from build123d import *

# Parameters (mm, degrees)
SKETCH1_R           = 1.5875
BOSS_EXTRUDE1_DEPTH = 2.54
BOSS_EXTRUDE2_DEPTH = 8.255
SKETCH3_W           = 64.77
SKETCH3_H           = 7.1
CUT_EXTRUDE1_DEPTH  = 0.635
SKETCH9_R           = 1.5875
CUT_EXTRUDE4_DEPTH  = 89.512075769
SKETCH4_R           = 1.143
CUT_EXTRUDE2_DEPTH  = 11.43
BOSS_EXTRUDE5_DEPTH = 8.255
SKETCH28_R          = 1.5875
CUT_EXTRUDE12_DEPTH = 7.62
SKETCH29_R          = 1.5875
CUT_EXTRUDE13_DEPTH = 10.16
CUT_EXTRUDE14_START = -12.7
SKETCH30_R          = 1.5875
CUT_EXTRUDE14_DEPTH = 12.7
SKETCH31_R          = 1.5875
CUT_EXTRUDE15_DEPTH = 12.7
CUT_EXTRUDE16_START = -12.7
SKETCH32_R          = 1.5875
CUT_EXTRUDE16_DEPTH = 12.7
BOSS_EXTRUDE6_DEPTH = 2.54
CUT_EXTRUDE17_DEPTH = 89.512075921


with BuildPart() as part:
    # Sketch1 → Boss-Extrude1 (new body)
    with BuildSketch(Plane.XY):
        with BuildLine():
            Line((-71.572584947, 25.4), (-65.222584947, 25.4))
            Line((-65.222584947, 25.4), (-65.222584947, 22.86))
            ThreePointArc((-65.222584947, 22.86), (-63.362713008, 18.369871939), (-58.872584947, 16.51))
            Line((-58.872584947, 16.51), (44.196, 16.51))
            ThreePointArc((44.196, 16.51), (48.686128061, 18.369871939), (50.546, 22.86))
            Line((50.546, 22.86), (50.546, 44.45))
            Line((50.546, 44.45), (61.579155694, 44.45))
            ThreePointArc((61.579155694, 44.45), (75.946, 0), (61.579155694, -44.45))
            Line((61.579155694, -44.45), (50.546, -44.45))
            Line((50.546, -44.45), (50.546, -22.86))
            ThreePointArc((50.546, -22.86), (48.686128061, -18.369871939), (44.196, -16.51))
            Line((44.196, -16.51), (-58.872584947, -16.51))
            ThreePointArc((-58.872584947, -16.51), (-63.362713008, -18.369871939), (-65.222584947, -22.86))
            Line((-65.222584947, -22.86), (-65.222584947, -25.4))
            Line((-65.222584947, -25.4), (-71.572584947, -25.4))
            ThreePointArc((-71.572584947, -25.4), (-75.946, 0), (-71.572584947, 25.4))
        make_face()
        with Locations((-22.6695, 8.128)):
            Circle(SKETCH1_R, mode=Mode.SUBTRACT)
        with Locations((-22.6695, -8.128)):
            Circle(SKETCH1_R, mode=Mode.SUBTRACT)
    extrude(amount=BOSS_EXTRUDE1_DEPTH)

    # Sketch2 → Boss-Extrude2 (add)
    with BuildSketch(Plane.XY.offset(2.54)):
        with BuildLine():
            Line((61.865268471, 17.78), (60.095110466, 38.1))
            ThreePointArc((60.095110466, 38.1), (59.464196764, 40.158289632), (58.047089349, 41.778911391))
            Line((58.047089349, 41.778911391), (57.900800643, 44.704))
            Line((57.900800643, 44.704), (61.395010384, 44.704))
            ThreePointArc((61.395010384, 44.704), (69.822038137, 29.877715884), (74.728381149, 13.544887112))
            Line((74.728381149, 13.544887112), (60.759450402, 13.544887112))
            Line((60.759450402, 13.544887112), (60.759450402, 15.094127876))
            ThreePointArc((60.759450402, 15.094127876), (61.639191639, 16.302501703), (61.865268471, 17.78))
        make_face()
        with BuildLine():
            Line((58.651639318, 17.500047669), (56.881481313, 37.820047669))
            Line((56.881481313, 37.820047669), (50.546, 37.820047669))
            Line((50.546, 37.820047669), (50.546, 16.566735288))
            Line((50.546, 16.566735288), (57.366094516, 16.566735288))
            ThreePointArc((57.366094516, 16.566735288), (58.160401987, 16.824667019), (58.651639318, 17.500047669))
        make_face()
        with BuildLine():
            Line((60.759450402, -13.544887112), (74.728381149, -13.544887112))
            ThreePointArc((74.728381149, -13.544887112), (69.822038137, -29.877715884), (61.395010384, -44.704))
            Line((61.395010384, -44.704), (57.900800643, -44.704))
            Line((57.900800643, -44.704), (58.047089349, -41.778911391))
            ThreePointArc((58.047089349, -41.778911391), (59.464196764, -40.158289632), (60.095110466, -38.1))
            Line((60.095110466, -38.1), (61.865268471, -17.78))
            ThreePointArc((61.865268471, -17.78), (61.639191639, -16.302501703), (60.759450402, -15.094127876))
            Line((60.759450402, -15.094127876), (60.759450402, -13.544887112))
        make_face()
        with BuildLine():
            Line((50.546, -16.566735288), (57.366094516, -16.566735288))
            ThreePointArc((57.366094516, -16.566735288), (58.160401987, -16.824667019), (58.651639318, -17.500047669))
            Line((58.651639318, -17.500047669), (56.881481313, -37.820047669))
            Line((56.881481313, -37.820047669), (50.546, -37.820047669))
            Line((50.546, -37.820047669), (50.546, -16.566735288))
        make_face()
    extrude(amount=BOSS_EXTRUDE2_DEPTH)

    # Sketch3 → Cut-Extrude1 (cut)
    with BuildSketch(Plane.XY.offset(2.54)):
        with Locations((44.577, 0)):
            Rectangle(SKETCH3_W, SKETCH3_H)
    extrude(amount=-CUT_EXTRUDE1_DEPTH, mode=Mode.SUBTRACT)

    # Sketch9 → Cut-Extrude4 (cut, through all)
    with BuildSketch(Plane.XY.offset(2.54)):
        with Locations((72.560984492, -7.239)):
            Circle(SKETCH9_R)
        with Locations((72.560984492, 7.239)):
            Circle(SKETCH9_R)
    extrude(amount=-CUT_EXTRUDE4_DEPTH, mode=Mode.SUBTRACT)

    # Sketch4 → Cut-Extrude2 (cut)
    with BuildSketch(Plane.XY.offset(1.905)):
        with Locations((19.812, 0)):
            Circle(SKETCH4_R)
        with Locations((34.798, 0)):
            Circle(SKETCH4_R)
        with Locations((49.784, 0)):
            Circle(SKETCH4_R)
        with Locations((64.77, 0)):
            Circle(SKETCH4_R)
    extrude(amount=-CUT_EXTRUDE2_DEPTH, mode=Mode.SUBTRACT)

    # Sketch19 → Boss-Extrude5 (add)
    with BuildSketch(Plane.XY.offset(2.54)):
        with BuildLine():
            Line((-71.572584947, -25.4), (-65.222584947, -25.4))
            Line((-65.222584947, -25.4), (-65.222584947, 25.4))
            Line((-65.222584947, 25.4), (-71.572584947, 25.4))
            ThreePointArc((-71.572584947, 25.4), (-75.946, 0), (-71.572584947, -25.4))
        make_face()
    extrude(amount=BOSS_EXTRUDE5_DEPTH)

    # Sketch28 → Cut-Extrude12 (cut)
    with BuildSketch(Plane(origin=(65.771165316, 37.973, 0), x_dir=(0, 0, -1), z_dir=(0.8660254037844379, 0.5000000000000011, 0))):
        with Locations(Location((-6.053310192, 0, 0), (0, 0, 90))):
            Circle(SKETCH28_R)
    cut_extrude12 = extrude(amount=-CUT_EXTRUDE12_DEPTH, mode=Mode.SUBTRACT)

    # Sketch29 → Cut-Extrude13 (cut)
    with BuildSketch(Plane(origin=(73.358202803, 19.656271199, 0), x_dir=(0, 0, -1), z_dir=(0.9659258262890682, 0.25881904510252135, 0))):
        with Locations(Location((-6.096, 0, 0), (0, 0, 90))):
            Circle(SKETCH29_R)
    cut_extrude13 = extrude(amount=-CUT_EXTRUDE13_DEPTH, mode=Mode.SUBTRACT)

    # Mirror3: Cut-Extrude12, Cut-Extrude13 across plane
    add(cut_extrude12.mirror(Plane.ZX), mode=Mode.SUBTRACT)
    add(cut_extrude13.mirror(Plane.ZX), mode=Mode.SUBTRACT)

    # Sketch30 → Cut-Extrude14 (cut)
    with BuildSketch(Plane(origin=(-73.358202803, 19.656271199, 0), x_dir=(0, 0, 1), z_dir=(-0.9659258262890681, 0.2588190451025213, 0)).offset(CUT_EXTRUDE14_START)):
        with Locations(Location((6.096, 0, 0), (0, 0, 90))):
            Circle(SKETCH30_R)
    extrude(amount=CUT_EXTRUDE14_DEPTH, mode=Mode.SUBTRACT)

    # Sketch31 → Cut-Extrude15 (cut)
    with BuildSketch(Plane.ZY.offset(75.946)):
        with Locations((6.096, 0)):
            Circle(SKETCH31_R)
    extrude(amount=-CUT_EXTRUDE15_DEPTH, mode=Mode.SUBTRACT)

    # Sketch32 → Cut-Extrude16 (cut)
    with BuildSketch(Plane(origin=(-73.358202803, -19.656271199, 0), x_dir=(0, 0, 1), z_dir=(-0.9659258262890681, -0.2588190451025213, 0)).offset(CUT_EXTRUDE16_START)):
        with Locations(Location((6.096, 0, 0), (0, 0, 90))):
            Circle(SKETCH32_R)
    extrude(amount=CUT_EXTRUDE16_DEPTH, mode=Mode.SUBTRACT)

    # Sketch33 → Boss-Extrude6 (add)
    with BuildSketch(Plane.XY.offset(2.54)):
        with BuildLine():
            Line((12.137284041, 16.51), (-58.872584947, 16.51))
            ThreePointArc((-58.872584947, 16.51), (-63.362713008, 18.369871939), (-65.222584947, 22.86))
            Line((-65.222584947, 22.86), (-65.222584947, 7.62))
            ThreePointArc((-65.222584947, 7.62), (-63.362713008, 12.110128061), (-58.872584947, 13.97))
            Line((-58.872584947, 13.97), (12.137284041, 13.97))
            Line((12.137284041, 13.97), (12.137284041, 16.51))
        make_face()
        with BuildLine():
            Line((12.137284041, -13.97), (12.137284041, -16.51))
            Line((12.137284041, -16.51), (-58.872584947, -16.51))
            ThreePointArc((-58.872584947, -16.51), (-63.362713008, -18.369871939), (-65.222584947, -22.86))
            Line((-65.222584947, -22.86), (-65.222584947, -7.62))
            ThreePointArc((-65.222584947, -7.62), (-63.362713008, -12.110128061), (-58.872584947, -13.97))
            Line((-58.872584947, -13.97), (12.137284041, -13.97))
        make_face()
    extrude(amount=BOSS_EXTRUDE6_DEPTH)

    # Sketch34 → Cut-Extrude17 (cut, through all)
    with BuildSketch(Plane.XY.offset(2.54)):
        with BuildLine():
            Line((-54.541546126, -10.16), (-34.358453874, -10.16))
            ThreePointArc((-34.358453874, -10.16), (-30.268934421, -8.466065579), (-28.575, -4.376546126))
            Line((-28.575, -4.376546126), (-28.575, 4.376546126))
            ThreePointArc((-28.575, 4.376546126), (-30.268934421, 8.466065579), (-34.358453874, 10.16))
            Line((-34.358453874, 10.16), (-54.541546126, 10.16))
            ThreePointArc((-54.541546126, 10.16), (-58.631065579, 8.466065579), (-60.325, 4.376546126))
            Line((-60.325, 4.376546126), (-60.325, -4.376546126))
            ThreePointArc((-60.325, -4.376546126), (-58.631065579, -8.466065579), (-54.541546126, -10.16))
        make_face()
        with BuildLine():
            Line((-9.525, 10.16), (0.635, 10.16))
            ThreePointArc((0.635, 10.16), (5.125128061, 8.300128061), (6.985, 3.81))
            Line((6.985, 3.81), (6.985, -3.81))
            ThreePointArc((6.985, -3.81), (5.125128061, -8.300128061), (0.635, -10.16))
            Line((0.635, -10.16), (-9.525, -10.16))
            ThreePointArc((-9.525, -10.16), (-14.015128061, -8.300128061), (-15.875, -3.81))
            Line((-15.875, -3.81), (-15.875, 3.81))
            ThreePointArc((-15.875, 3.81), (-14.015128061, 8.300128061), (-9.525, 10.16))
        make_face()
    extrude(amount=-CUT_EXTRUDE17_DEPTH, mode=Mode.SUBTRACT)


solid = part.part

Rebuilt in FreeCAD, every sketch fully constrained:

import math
import FreeCAD as App
import Part
import Sketcher
from FreeCAD import Vector
Q = App.Units.Quantity

doc = App.newDocument("Part")
body = doc.addObject("PartDesign::Body", "Body")

sketch1 = doc.addObject("Sketcher::SketchObject", "Sketch")
body.addObject(sketch1)
sketch1.AttachmentSupport = (doc.XY_Plane, [""])
sketch1.MapMode = "FlatFace"
sketch1.addGeometry(Part.LineSegment(Vector(-65.2, 25.4, 0), Vector(-71.6, 25.4, 0)), False)
sketch1.addGeometry(Part.ArcOfCircle(Part.Circle(Vector(0, 0, 0), Vector(0, 0, 1), 75.9), math.radians(160), math.radians(200)), False)
sketch1.addGeometry(Part.LineSegment(Vector(-71.6, -25.4, 0), Vector(-65.2, -25.4, 0)), False)
sketch1.addGeometry(Part.LineSegment(Vector(-65.2, -25.4, 0), Vector(-65.2, -22.9, 0)), False)
sketch1.addGeometry(Part.ArcOfCircle(Part.Circle(Vector(-58.9, -22.9, 0), Vector(0, 0, 1), 6.3), math.radians(90), math.radians(180)), False)
sketch1.addGeometry(Part.LineSegment(Vector(-58.9, -16.5, 0), Vector(44.2, -16.5, 0)), False)
sketch1.addGeometry(Part.ArcOfCircle(Part.Circle(Vector(44.2, -22.9, 0), Vector(0, 0, 1), 6.3), math.radians(0), math.radians(90)), False)
sketch1.addGeometry(Part.LineSegment(Vector(50.5, -22.9, 0), Vector(50.5, -44.5, 0)), False)
sketch1.addGeometry(Part.LineSegment(Vector(50.5, -44.5, 0), Vector(61.6, -44.5, 0)), False)
sketch1.addGeometry(Part.ArcOfCircle(Part.Circle(Vector(0, 0, 0), Vector(0, 0, 1), 75.9), math.radians(-36), math.radians(36)), False)
sketch1.addGeometry(Part.LineSegment(Vector(61.6, 44.5, 0), Vector(50.5, 44.5, 0)), False)
sketch1.addGeometry(Part.LineSegment(Vector(50.5, 44.5, 0), Vector(50.5, 22.9, 0)), False)
sketch1.addGeometry(Part.ArcOfCircle(Part.Circle(Vector(44.2, 22.9, 0), Vector(0, 0, 1), 6.3), math.radians(-90), math.radians(0)), False)
sketch1.addGeometry(Part.LineSegment(Vector(44.2, 16.5, 0), Vector(-58.9, 16.5, 0)), False)
sketch1.addGeometry(Part.ArcOfCircle(Part.Circle(Vector(-58.9, 22.9, 0), Vector(0, 0, 1), 6.3), math.radians(180), math.radians(270)), False)
sketch1.addGeometry(Part.LineSegment(Vector(-65.2, 22.9, 0), Vector(-65.2, 25.4, 0)), False)
sketch1.addGeometry(Part.Circle(Vector(-22.7, -8.1, 0), Vector(0, 0, 1), 1.6), False)
sketch1.addGeometry(Part.Circle(Vector(-22.7, 8.1, 0), Vector(0, 0, 1), 1.6), False)
sketch1.addConstraint(Sketcher.Constraint("Coincident", 0, 2, 1, 1))
sketch1.addConstraint(Sketcher.Constraint("Coincident", 1, 2, 2, 1))
sketch1.addConstraint(Sketcher.Constraint("Coincident", 2, 2, 3, 1))
sketch1.addConstraint(Sketcher.Constraint("Tangent", 3, 2, 4, 2))
sketch1.addConstraint(Sketcher.Constraint("Tangent", 4, 1, 5, 1))
sketch1.addConstraint(Sketcher.Constraint("Tangent", 5, 2, 6, 2))
sketch1.addConstraint(Sketcher.Constraint("Tangent", 6, 1, 7, 1))
sketch1.addConstraint(Sketcher.Constraint("Coincident", 7, 2, 8, 1))
sketch1.addConstraint(Sketcher.Constraint("Coincident", 8, 2, 9, 1))
sketch1.addConstraint(Sketcher.Constraint("Coincident", 9, 2, 10, 1))
sketch1.addConstraint(Sketcher.Constraint("Coincident", 10, 2, 11, 1))
sketch1.addConstraint(Sketcher.Constraint("Tangent", 11, 2, 12, 2))
sketch1.addConstraint(Sketcher.Constraint("Tangent", 12, 1, 13, 1))
sketch1.addConstraint(Sketcher.Constraint("Tangent", 13, 2, 14, 2))
sketch1.addConstraint(Sketcher.Constraint("Tangent", 14, 1, 15, 1))
sketch1.addConstraint(Sketcher.Constraint("Coincident", 15, 2, 0, 1))
sketch1.addConstraint(Sketcher.Constraint("Horizontal", 0))
sketch1.addConstraint(Sketcher.Constraint("Horizontal", 2))
sketch1.addConstraint(Sketcher.Constraint("Vertical", 3))
sketch1.addConstraint(Sketcher.Constraint("Horizontal", 5))
sketch1.addConstraint(Sketcher.Constraint("Vertical", 7))
sketch1.addConstraint(Sketcher.Constraint("Horizontal", 8))
sketch1.addConstraint(Sketcher.Constraint("Horizontal", 10))
sketch1.addConstraint(Sketcher.Constraint("Vertical", 11))
sketch1.addConstraint(Sketcher.Constraint("Horizontal", 13))
sketch1.addConstraint(Sketcher.Constraint("Vertical", 15))
sketch1.addConstraint(Sketcher.Constraint("Coincident", 1, 3, -1, 1))
sketch1.addConstraint(Sketcher.Constraint("Coincident", 9, 3, -1, 1))
sketch1.addConstraint(Sketcher.Constraint("Equal", 4, 6))
sketch1.addConstraint(Sketcher.Constraint("Equal", 1, 9))
sketch1.addConstraint(Sketcher.Constraint("Equal", 6, 12))
sketch1.addConstraint(Sketcher.Constraint("Equal", 12, 14))
sketch1.addConstraint(Sketcher.Constraint("Equal", 16, 17))
sketch1.addConstraint(Sketcher.Constraint("Symmetric", 6, 3, 12, 3, -1))
sketch1.addConstraint(Sketcher.Constraint("Symmetric", 16, 3, 17, 3, -1))
sketch1.addConstraint(Sketcher.Constraint("Symmetric", 2, 2, 15, 2, -1))
sketch1.addConstraint(Sketcher.Constraint("Vertical", 8, 2, 9, 2))
sketch1.addConstraint(Sketcher.Constraint("Radius", 1, Q("2.99 in")))
sketch1.addConstraint(Sketcher.Constraint("Radius", 4, Q("0.25 in")))
sketch1.addConstraint(Sketcher.Constraint("Diameter", 16, Q("0.125 in")))
sketch1.addConstraint(Sketcher.Constraint("DistanceY", 3, 1, 3, 2, Q("0.1 in")))
sketch1.addConstraint(Sketcher.Constraint("DistanceY", -1, 1, 0, 2, Q("1 in")))
sketch1.addConstraint(Sketcher.Constraint("DistanceX", 0, 2, 0, 1, Q("0.25 in")))
sketch1.addConstraint(Sketcher.Constraint("DistanceY", 7, 2, 7, 1, Q("0.85 in")))
sketch1.addConstraint(Sketcher.Constraint("DistanceX", -1, 1, 6, 3, Q("1.74 in")))
sketch1.addConstraint(Sketcher.Constraint("DistanceY", 16, 3, -1, 1, Q("0.32 in")))
sketch1.addConstraint(Sketcher.Constraint("DistanceX", 16, 3, -1, 1, Q("0.8925 in")))
pad1 = doc.addObject("PartDesign::Pad", "Pad")
body.addObject(pad1)
pad1.Profile = sketch1
pad1.Length = Q("0.1 in")

sketch2 = doc.addObject("Sketcher::SketchObject", "Sketch001")
body.addObject(sketch2)
sketch2.AttachmentSupport = (doc.XY_Plane, [""])
sketch2.MapMode = "FlatFace"
sketch2.AttachmentOffset = App.Placement(Vector(0, 0, 0.1 * 25.4), App.Rotation())
sketch2.addGeometry(Part.LineSegment(Vector(60.1, 38.1, 0), Vector(61.9, 17.8, 0)), False)
sketch2.addGeometry(Part.ArcOfCircle(Part.Circle(Vector(58.7, 17.5, 0), Vector(0, 0, 1), 3.2), math.radians(-50), math.radians(5)), False)
sketch2.addGeometry(Part.LineSegment(Vector(60.8, 15.1, 0), Vector(60.8, 13.5, 0)), False)
sketch2.addGeometry(Part.LineSegment(Vector(60.8, 13.5, 0), Vector(74.7, 13.5, 0)), False)
sketch2.addGeometry(Part.ArcOfCircle(Part.Circle(Vector(0, 0, 0), Vector(0, 0, 1), 75.9), math.radians(10), math.radians(36)), False)
sketch2.addGeometry(Part.LineSegment(Vector(61.4, 44.7, 0), Vector(57.9, 44.7, 0)), False)
sketch2.addGeometry(Part.LineSegment(Vector(57.9, 44.7, 0), Vector(58, 41.8, 0)), False)
sketch2.addGeometry(Part.ArcOfCircle(Part.Circle(Vector(55, 37.7, 0), Vector(0, 0, 1), 5.2), math.radians(5), math.radians(53)), False)
sketch2.addGeometry(Part.LineSegment(Vector(58.7, 17.5, 0), Vector(56.9, 37.8, 0)), False)
sketch2.addGeometry(Part.LineSegment(Vector(56.9, 37.8, 0), Vector(50.5, 37.8, 0)), False)
sketch2.addGeometry(Part.LineSegment(Vector(50.5, 37.8, 0), Vector(50.5, 16.6, 0)), False)
sketch2.addGeometry(Part.LineSegment(Vector(50.5, 16.6, 0), Vector(57.4, 16.6, 0)), False)
sketch2.addGeometry(Part.ArcOfCircle(Part.Circle(Vector(57.4, 17.9, 0), Vector(0, 0, 1), 1.4), math.radians(-90), math.radians(-18)), False)
sketch2.addGeometry(Part.LineSegment(Vector(74.7, -13.5, 0), Vector(60.8, -13.5, 0)), False)
sketch2.addGeometry(Part.LineSegment(Vector(60.8, -13.5, 0), Vector(60.8, -15.1, 0)), False)
sketch2.addGeometry(Part.ArcOfCircle(Part.Circle(Vector(58.7, -17.5, 0), Vector(0, 0, 1), 3.2), math.radians(-5), math.radians(50)), False)
sketch2.addGeometry(Part.LineSegment(Vector(61.9, -17.8, 0), Vector(60.1, -38.1, 0)), False)
sketch2.addGeometry(Part.ArcOfCircle(Part.Circle(Vector(55, -37.7, 0), Vector(0, 0, 1), 5.2), math.radians(-53), math.radians(-5)), False)
sketch2.addGeometry(Part.LineSegment(Vector(58, -41.8, 0), Vector(57.9, -44.7, 0)), False)
sketch2.addGeometry(Part.LineSegment(Vector(57.9, -44.7, 0), Vector(61.4, -44.7, 0)), False)
sketch2.addGeometry(Part.ArcOfCircle(Part.Circle(Vector(0, 0, 0), Vector(0, 0, 1), 75.9), math.radians(-36), math.radians(-10)), False)
sketch2.addGeometry(Part.LineSegment(Vector(57.4, -16.6, 0), Vector(50.5, -16.6, 0)), False)
sketch2.addGeometry(Part.LineSegment(Vector(50.5, -16.6, 0), Vector(50.5, -37.8, 0)), False)
sketch2.addGeometry(Part.LineSegment(Vector(50.5, -37.8, 0), Vector(56.9, -37.8, 0)), False)
sketch2.addGeometry(Part.LineSegment(Vector(56.9, -37.8, 0), Vector(58.7, -17.5, 0)), False)
sketch2.addGeometry(Part.ArcOfCircle(Part.Circle(Vector(57.4, -17.9, 0), Vector(0, 0, 1), 1.4), math.radians(18), math.radians(90)), False)
sketch2.addConstraint(Sketcher.Constraint("Tangent", 0, 2, 1, 2))
sketch2.addConstraint(Sketcher.Constraint("Coincident", 1, 1, 2, 1))
sketch2.addConstraint(Sketcher.Constraint("Coincident", 2, 2, 3, 1))
sketch2.addConstraint(Sketcher.Constraint("Coincident", 3, 2, 4, 1))
sketch2.addConstraint(Sketcher.Constraint("Coincident", 4, 2, 5, 1))
sketch2.addConstraint(Sketcher.Constraint("Coincident", 5, 2, 6, 1))
sketch2.addConstraint(Sketcher.Constraint("Coincident", 6, 2, 7, 2))
sketch2.addConstraint(Sketcher.Constraint("Tangent", 7, 1, 0, 1))
sketch2.addConstraint(Sketcher.Constraint("Coincident", 8, 2, 9, 1))
sketch2.addConstraint(Sketcher.Constraint("Coincident", 9, 2, 10, 1))
sketch2.addConstraint(Sketcher.Constraint("Coincident", 10, 2, 11, 1))
sketch2.addConstraint(Sketcher.Constraint("Tangent", 11, 2, 12, 1))
sketch2.addConstraint(Sketcher.Constraint("Coincident", 12, 2, 8, 1))
sketch2.addConstraint(Sketcher.Constraint("Coincident", 13, 2, 14, 1))
sketch2.addConstraint(Sketcher.Constraint("Coincident", 14, 2, 15, 2))
sketch2.addConstraint(Sketcher.Constraint("Tangent", 15, 1, 16, 1))
sketch2.addConstraint(Sketcher.Constraint("Tangent", 16, 2, 17, 2))
sketch2.addConstraint(Sketcher.Constraint("Coincident", 17, 1, 18, 1))
sketch2.addConstraint(Sketcher.Constraint("Coincident", 18, 2, 19, 1))
sketch2.addConstraint(Sketcher.Constraint("Coincident", 19, 2, 20, 1))
sketch2.addConstraint(Sketcher.Constraint("Coincident", 20, 2, 13, 1))
sketch2.addConstraint(Sketcher.Constraint("Coincident", 21, 2, 22, 1))
sketch2.addConstraint(Sketcher.Constraint("Coincident", 22, 2, 23, 1))
sketch2.addConstraint(Sketcher.Constraint("Coincident", 23, 2, 24, 1))
sketch2.addConstraint(Sketcher.Constraint("Coincident", 24, 2, 25, 1))
sketch2.addConstraint(Sketcher.Constraint("Tangent", 25, 2, 21, 1))
sketch2.addConstraint(Sketcher.Constraint("Vertical", 2))
sketch2.addConstraint(Sketcher.Constraint("Horizontal", 3))
sketch2.addConstraint(Sketcher.Constraint("Horizontal", 5))
sketch2.addConstraint(Sketcher.Constraint("Horizontal", 9))
sketch2.addConstraint(Sketcher.Constraint("Vertical", 10))
sketch2.addConstraint(Sketcher.Constraint("Horizontal", 11))
sketch2.addConstraint(Sketcher.Constraint("Horizontal", 13))
sketch2.addConstraint(Sketcher.Constraint("Vertical", 14))
sketch2.addConstraint(Sketcher.Constraint("Horizontal", 19))
sketch2.addConstraint(Sketcher.Constraint("Horizontal", 21))
sketch2.addConstraint(Sketcher.Constraint("Vertical", 22))
sketch2.addConstraint(Sketcher.Constraint("Horizontal", 23))
sketch2.addConstraint(Sketcher.Constraint("Coincident", 4, 3, -1, 1))
sketch2.addConstraint(Sketcher.Constraint("Coincident", 20, 3, -1, 1))
sketch2.addConstraint(Sketcher.Constraint("Equal", 1, 15))
sketch2.addConstraint(Sketcher.Constraint("Equal", 7, 17))
sketch2.addConstraint(Sketcher.Constraint("Equal", 4, 20))
sketch2.addConstraint(Sketcher.Constraint("Equal", 12, 25))
sketch2.addConstraint(Sketcher.Constraint("Symmetric", 1, 3, 15, 3, -1))
sketch2.addConstraint(Sketcher.Constraint("Symmetric", 7, 3, 17, 3, -1))
sketch2.addConstraint(Sketcher.Constraint("Symmetric", 12, 3, 25, 3, -1))
sketch2.addConstraint(Sketcher.Constraint("Symmetric", 2, 2, 13, 2, -1))
sketch2.addConstraint(Sketcher.Constraint("Symmetric", 5, 2, 18, 2, -1))
sketch2.addConstraint(Sketcher.Constraint("Symmetric", 9, 2, 22, 2, -1))
sketch2.addConstraint(Sketcher.Constraint("Parallel", 0, 8))
sketch2.addConstraint(Sketcher.Constraint("Parallel", 16, 24))
sketch2.addConstraint(Sketcher.Constraint("Vertical", 6, 2, 17, 1))
sketch2.addConstraint(Sketcher.Constraint("Vertical", 8, 2, 23, 2))
sketch2.addConstraint(Sketcher.Constraint("Equal", 0, 8))
sketch2.addConstraint(Sketcher.Constraint("Radius", 4, Q("2.99 in")))
sketch2.addConstraint(Sketcher.Constraint("DistanceY", -1, 1, 0, 2, Q("0.7 in")))
sketch2.addConstraint(Sketcher.Constraint("DistanceY", -1, 1, 7, 1, Q("1.5 in")))
sketch2.addConstraint(Sketcher.Constraint("DistanceY", -1, 1, 4, 2, Q("1.76 in")))
sketch2.addConstraint(Sketcher.Constraint("DistanceX", -1, 1, 9, 2, Q("1.99 in")))
sketch2.addConstraint(Sketcher.Constraint("Radius", 12, 1.352011))
sketch2.addConstraint(Sketcher.Constraint("Radius", 1, 3.160443))
sketch2.addConstraint(Sketcher.Constraint("Radius", 7, 5.150666))
sketch2.addConstraint(Sketcher.Constraint("DistanceY", 1, 3, 7, 3, Q("0.7931999 in")))
sketch2.addConstraint(Sketcher.Constraint("DistanceX", 3, 1, 3, 2, 13.968931))
sketch2.addConstraint(Sketcher.Constraint("DistanceX", 5, 2, 5, 1, 3.49421))
sketch2.addConstraint(Sketcher.Constraint("DistanceX", 9, 2, 9, 1, 6.335481))
sketch2.addConstraint(Sketcher.Constraint("DistanceY", 2, 2, 2, 1, 1.549241))
sketch2.addConstraint(Sketcher.Constraint("DistanceX", 1, 3, 1, 1, 2.042701))
sketch2.addConstraint(Sketcher.Constraint("DistanceY", 12, 2, 12, 3, 0.418699))
sketch2.addConstraint(Sketcher.Constraint("DistanceX", -1, 1, 6, 2, 58.047089))
sketch2.addConstraint(Sketcher.Constraint("DistanceY", 12, 3, 7, 3, 19.734251))
pad2 = doc.addObject("PartDesign::Pad", "Pad001")
body.addObject(pad2)
pad2.Profile = sketch2
pad2.Length = Q("0.325 in")

sketch3 = doc.addObject("Sketcher::SketchObject", "Sketch002")
body.addObject(sketch3)
sketch3.AttachmentSupport = (doc.XY_Plane, [""])
sketch3.MapMode = "FlatFace"
sketch3.AttachmentOffset = App.Placement(Vector(0, 0, 0.1 * 25.4), App.Rotation())
sketch3.addGeometry(Part.LineSegment(Vector(12, 4, 0), Vector(12, -4, 0)), False)
sketch3.addGeometry(Part.LineSegment(Vector(12, -4, 0), Vector(77, -4, 0)), False)
sketch3.addGeometry(Part.LineSegment(Vector(77, -4, 0), Vector(77, 4, 0)), False)
sketch3.addGeometry(Part.LineSegment(Vector(77, 4, 0), Vector(12, 4, 0)), False)
sketch3.addConstraint(Sketcher.Constraint("Coincident", 0, 2, 1, 1))
sketch3.addConstraint(Sketcher.Constraint("Coincident", 1, 2, 2, 1))
sketch3.addConstraint(Sketcher.Constraint("Coincident", 2, 2, 3, 1))
sketch3.addConstraint(Sketcher.Constraint("Coincident", 3, 2, 0, 1))
sketch3.addConstraint(Sketcher.Constraint("Vertical", 0))
sketch3.addConstraint(Sketcher.Constraint("Horizontal", 1))
sketch3.addConstraint(Sketcher.Constraint("Vertical", 2))
sketch3.addConstraint(Sketcher.Constraint("Horizontal", 3))
sketch3.addConstraint(Sketcher.Constraint("DistanceX", 1, 1, 1, 2, Q("2.55 in")))
sketch3.addConstraint(Sketcher.Constraint("DistanceX", -1, 1, 0, 2, Q("0.48 in")))
sketch3.addConstraint(Sketcher.Constraint("DistanceY", 0, 2, 0, 1, 7.1))
sketch3.addConstraint(Sketcher.Constraint("DistanceY", 0, 2, -1, 1, 3.55))
pocket1 = doc.addObject("PartDesign::Pocket", "Pocket")
body.addObject(pocket1)
pocket1.Profile = sketch3
pocket1.Length = Q("0.025 in")

sketch4 = doc.addObject("Sketcher::SketchObject", "Sketch003")
body.addObject(sketch4)
sketch4.AttachmentSupport = (doc.XY_Plane, [""])
sketch4.MapMode = "FlatFace"
sketch4.AttachmentOffset = App.Placement(Vector(0, 0, 0.1 * 25.4), App.Rotation())
sketch4.addGeometry(Part.Circle(Vector(72.6, -7.2, 0), Vector(0, 0, 1), 1.6), False)
sketch4.addGeometry(Part.Circle(Vector(72.6, 7.2, 0), Vector(0, 0, 1), 1.6), False)
sketch4.addConstraint(Sketcher.Constraint("Equal", 0, 1))
sketch4.addConstraint(Sketcher.Constraint("Symmetric", 0, 3, 1, 3, -1))
sketch4.addConstraint(Sketcher.Constraint("Diameter", 0, Q("0.125 in")))
sketch4.addConstraint(Sketcher.Constraint("DistanceY", 0, 3, 1, 3, Q("0.57 in")))
sketch4.addConstraint(Sketcher.Constraint("DistanceX", -1, 1, 0, 3, 72.560984))
pocket2 = doc.addObject("PartDesign::Pocket", "Pocket001")
body.addObject(pocket2)
pocket2.Profile = sketch4
pocket2.Type = "ThroughAll"

sketch5 = doc.addObject("Sketcher::SketchObject", "Sketch004")
body.addObject(sketch5)
sketch5.AttachmentSupport = (doc.XY_Plane, [""])
sketch5.MapMode = "FlatFace"
sketch5.AttachmentOffset = App.Placement(Vector(0, 0, 0.075 * 25.4), App.Rotation())
sketch5.addGeometry(Part.Circle(Vector(19.8, 0, 0), Vector(0, 0, 1), 1.1), False)
sketch5.addGeometry(Part.Circle(Vector(34.8, 0, 0), Vector(0, 0, 1), 1.1), False)
sketch5.addGeometry(Part.Circle(Vector(49.8, 0, 0), Vector(0, 0, 1), 1.1), False)
sketch5.addGeometry(Part.Circle(Vector(64.8, 0, 0), Vector(0, 0, 1), 1.1), False)
sketch5.addConstraint(Sketcher.Constraint("Equal", 0, 1))
sketch5.addConstraint(Sketcher.Constraint("Equal", 1, 2))
sketch5.addConstraint(Sketcher.Constraint("Equal", 2, 3))
sketch5.addConstraint(Sketcher.Constraint("PointOnObject", 0, 3, -1))
sketch5.addConstraint(Sketcher.Constraint("PointOnObject", 1, 3, -1))
sketch5.addConstraint(Sketcher.Constraint("PointOnObject", 2, 3, -1))
sketch5.addConstraint(Sketcher.Constraint("PointOnObject", 3, 3, -1))
sketch5.addConstraint(Sketcher.Constraint("Diameter", 0, Q("0.09 in")))
sketch5.addConstraint(Sketcher.Constraint("DistanceX", -1, 1, 0, 3, Q("0.78 in")))
sketch5.addConstraint(Sketcher.Constraint("DistanceX", -1, 1, 1, 3, Q("1.37 in")))
sketch5.addConstraint(Sketcher.Constraint("DistanceX", -1, 1, 2, 3, Q("1.96 in")))
sketch5.addConstraint(Sketcher.Constraint("DistanceX", -1, 1, 3, 3, Q("2.55 in")))
pocket3 = doc.addObject("PartDesign::Pocket", "Pocket002")
body.addObject(pocket3)
pocket3.Profile = sketch5
pocket3.Length = Q("0.45 in")

sketch6 = doc.addObject("Sketcher::SketchObject", "Sketch005")
body.addObject(sketch6)
sketch6.AttachmentSupport = (doc.XY_Plane, [""])
sketch6.MapMode = "FlatFace"
sketch6.AttachmentOffset = App.Placement(Vector(0, 0, 0.1 * 25.4), App.Rotation())
sketch6.addGeometry(Part.LineSegment(Vector(-72, -25, 0), Vector(-65, -25, 0)), False)
sketch6.addGeometry(Part.LineSegment(Vector(-65, -25, 0), Vector(-65, 25, 0)), False)
sketch6.addGeometry(Part.LineSegment(Vector(-65, 25, 0), Vector(-72, 25, 0)), False)
sketch6.addGeometry(Part.ArcOfCircle(Part.Circle(Vector(0, 0, 0), Vector(0, 0, 1), 76), math.radians(160), math.radians(200)), False)
sketch6.addConstraint(Sketcher.Constraint("Coincident", 0, 2, 1, 1))
sketch6.addConstraint(Sketcher.Constraint("Coincident", 1, 2, 2, 1))
sketch6.addConstraint(Sketcher.Constraint("Coincident", 2, 2, 3, 1))
sketch6.addConstraint(Sketcher.Constraint("Coincident", 3, 2, 0, 1))
sketch6.addConstraint(Sketcher.Constraint("Horizontal", 0))
sketch6.addConstraint(Sketcher.Constraint("Vertical", 1))
sketch6.addConstraint(Sketcher.Constraint("Horizontal", 2))
sketch6.addConstraint(Sketcher.Constraint("Coincident", 3, 3, -1, 1))
sketch6.addConstraint(Sketcher.Constraint("Vertical", 2, 2, 3, 2))
sketch6.addConstraint(Sketcher.Constraint("DistanceY", 1, 1, 1, 2, Q("2 in")))
sketch6.addConstraint(Sketcher.Constraint("Radius", 3, Q("2.99 in")))
sketch6.addConstraint(Sketcher.Constraint("DistanceX", 0, 1, 0, 2, Q("0.25 in")))
pad3 = doc.addObject("PartDesign::Pad", "Pad002")
body.addObject(pad3)
pad3.Profile = sketch6
pad3.Length = Q("0.325 in")

sketch7 = doc.addObject("Sketcher::SketchObject", "Sketch006")
body.addObject(sketch7)
sketch7.Placement = App.Placement(Vector(65.771165, 37.973, 0), App.Rotation(Vector(0, 0, -1), Vector(-0.5, 0.866025404, 0), Vector(0.866025404, 0.5, 0), "ZXY"))
sketch7.addGeometry(Part.Circle(Vector(-6.1, 0, 0), Vector(0, 0, 1), 1.6), False)
sketch7.addConstraint(Sketcher.Constraint("PointOnObject", 0, 3, -1))
sketch7.addConstraint(Sketcher.Constraint("Diameter", 0, Q("0.125 in")))
sketch7.addConstraint(Sketcher.Constraint("DistanceX", 0, 3, -1, 1, 6.05331))
pocket4 = doc.addObject("PartDesign::Pocket", "Pocket003")
body.addObject(pocket4)
pocket4.Profile = sketch7
pocket4.Length = Q("0.3 in")

sketch8 = doc.addObject("Sketcher::SketchObject", "Sketch007")
body.addObject(sketch8)
sketch8.Placement = App.Placement(Vector(73.358203, 19.656271, 0), App.Rotation(Vector(0, 0, -1), Vector(-0.258819045, 0.965925826, 0), Vector(0.965925826, 0.258819045, 0), "ZXY"))
sketch8.addGeometry(Part.Circle(Vector(-6.1, 0, 0), Vector(0, 0, 1), 1.6), False)
sketch8.addConstraint(Sketcher.Constraint("PointOnObject", 0, 3, -1))
sketch8.addConstraint(Sketcher.Constraint("Diameter", 0, Q("0.125 in")))
sketch8.addConstraint(Sketcher.Constraint("DistanceX", 0, 3, -1, 1, Q("0.24 in")))
pocket5 = doc.addObject("PartDesign::Pocket", "Pocket004")
body.addObject(pocket5)
pocket5.Profile = sketch8
pocket5.Length = Q("0.4 in")
doc.recompute()

mirrored = doc.addObject("PartDesign::Mirrored", "Mirrored")
body.addObject(mirrored)
mirrored.Originals = [pocket4, pocket5]
mirrored.MirrorPlane = (doc.XZ_Plane, [""])
body.Tip = mirrored

sketch9 = doc.addObject("Sketcher::SketchObject", "Sketch008")
body.addObject(sketch9)
sketch9.Placement = App.Placement(Vector(-61.090945, 16.369269, 0), App.Rotation(Vector(0, 0, 1), Vector(0.258819045, 0.965925826, 0), Vector(-0.965925826, 0.258819045, 0), "ZXY"))
sketch9.addGeometry(Part.Circle(Vector(6.1, 0, 0), Vector(0, 0, 1), 1.6), False)
sketch9.addConstraint(Sketcher.Constraint("PointOnObject", 0, 3, -1))
sketch9.addConstraint(Sketcher.Constraint("Diameter", 0, Q("0.125 in")))
sketch9.addConstraint(Sketcher.Constraint("DistanceX", -1, 1, 0, 3, Q("0.24 in")))
pocket6 = doc.addObject("PartDesign::Pocket", "Pocket005")
body.addObject(pocket6)
pocket6.Profile = sketch9
pocket6.Length = Q("0.5 in")
pocket6.Reversed = True

sketch10 = doc.addObject("Sketcher::SketchObject", "Sketch009")
body.addObject(sketch10)
sketch10.AttachmentSupport = (doc.YZ_Plane, [""])
sketch10.MapMode = "FlatFace"
sketch10.AttachmentOffset = App.Placement(Vector(0, 0, -2.99 * 25.4), App.Rotation())
sketch10.addGeometry(Part.Circle(Vector(0, 6.1, 0), Vector(0, 0, 1), 1.6), False)
sketch10.addConstraint(Sketcher.Constraint("PointOnObject", 0, 3, -2))
sketch10.addConstraint(Sketcher.Constraint("Diameter", 0, Q("0.125 in")))
sketch10.addConstraint(Sketcher.Constraint("DistanceY", -1, 1, 0, 3, Q("0.24 in")))
pocket7 = doc.addObject("PartDesign::Pocket", "Pocket006")
body.addObject(pocket7)
pocket7.Profile = sketch10
pocket7.Length = Q("0.5 in")
pocket7.Reversed = True

sketch11 = doc.addObject("Sketcher::SketchObject", "Sketch010")
body.addObject(sketch11)
sketch11.Placement = App.Placement(Vector(-61.090945, -16.369269, 0), App.Rotation(Vector(0, 0, 1), Vector(-0.258819045, 0.965925826, 0), Vector(-0.965925826, -0.258819045, 0), "ZXY"))
sketch11.addGeometry(Part.Circle(Vector(6.1, 0, 0), Vector(0, 0, 1), 1.6), False)
sketch11.addConstraint(Sketcher.Constraint("PointOnObject", 0, 3, -1))
sketch11.addConstraint(Sketcher.Constraint("Diameter", 0, Q("0.125 in")))
sketch11.addConstraint(Sketcher.Constraint("DistanceX", -1, 1, 0, 3, Q("0.24 in")))
pocket8 = doc.addObject("PartDesign::Pocket", "Pocket007")
body.addObject(pocket8)
pocket8.Profile = sketch11
pocket8.Length = Q("0.5 in")
pocket8.Reversed = True

sketch12 = doc.addObject("Sketcher::SketchObject", "Sketch011")
body.addObject(sketch12)
sketch12.AttachmentSupport = (doc.XY_Plane, [""])
sketch12.MapMode = "FlatFace"
sketch12.AttachmentOffset = App.Placement(Vector(0, 0, 0.1 * 25.4), App.Rotation())
sketch12.addGeometry(Part.LineSegment(Vector(12.1, 16.5, 0), Vector(-58.9, 16.5, 0)), False)
sketch12.addGeometry(Part.ArcOfCircle(Part.Circle(Vector(-58.9, 22.9, 0), Vector(0, 0, 1), 6.3), math.radians(180), math.radians(270)), False)
sketch12.addGeometry(Part.LineSegment(Vector(-65.2, 22.9, 0), Vector(-65.2, 7.6, 0)), False)
sketch12.addGeometry(Part.ArcOfCircle(Part.Circle(Vector(-58.9, 7.6, 0), Vector(0, 0, 1), 6.3), math.radians(90), math.radians(180)), False)
sketch12.addGeometry(Part.LineSegment(Vector(-58.9, 14, 0), Vector(12.1, 14, 0)), False)
sketch12.addGeometry(Part.LineSegment(Vector(12.1, 14, 0), Vector(12.1, 16.5, 0)), False)
sketch12.addGeometry(Part.LineSegment(Vector(12.1, -16.5, 0), Vector(12.1, -14, 0)), False)
sketch12.addGeometry(Part.LineSegment(Vector(12.1, -14, 0), Vector(-58.9, -14, 0)), False)
sketch12.addGeometry(Part.ArcOfCircle(Part.Circle(Vector(-58.9, -7.6, 0), Vector(0, 0, 1), 6.3), math.radians(180), math.radians(270)), False)
sketch12.addGeometry(Part.LineSegment(Vector(-65.2, -7.6, 0), Vector(-65.2, -22.9, 0)), False)
sketch12.addGeometry(Part.ArcOfCircle(Part.Circle(Vector(-58.9, -22.9, 0), Vector(0, 0, 1), 6.3), math.radians(90), math.radians(180)), False)
sketch12.addGeometry(Part.LineSegment(Vector(-58.9, -16.5, 0), Vector(12.1, -16.5, 0)), False)
sketch12.addConstraint(Sketcher.Constraint("Tangent", 0, 2, 1, 2))
sketch12.addConstraint(Sketcher.Constraint("Tangent", 1, 1, 2, 1))
sketch12.addConstraint(Sketcher.Constraint("Tangent", 2, 2, 3, 2))
sketch12.addConstraint(Sketcher.Constraint("Tangent", 3, 1, 4, 1))
sketch12.addConstraint(Sketcher.Constraint("Coincident", 4, 2, 5, 1))
sketch12.addConstraint(Sketcher.Constraint("Coincident", 5, 2, 0, 1))
sketch12.addConstraint(Sketcher.Constraint("Coincident", 6, 2, 7, 1))
sketch12.addConstraint(Sketcher.Constraint("Tangent", 7, 2, 8, 2))
sketch12.addConstraint(Sketcher.Constraint("Tangent", 8, 1, 9, 1))
sketch12.addConstraint(Sketcher.Constraint("Tangent", 9, 2, 10, 2))
sketch12.addConstraint(Sketcher.Constraint("Tangent", 10, 1, 11, 1))
sketch12.addConstraint(Sketcher.Constraint("Coincident", 11, 2, 6, 1))
sketch12.addConstraint(Sketcher.Constraint("Horizontal", 0))
sketch12.addConstraint(Sketcher.Constraint("Vertical", 2))
sketch12.addConstraint(Sketcher.Constraint("Horizontal", 4))
sketch12.addConstraint(Sketcher.Constraint("Vertical", 5))
sketch12.addConstraint(Sketcher.Constraint("Vertical", 6))
sketch12.addConstraint(Sketcher.Constraint("Horizontal", 7))
sketch12.addConstraint(Sketcher.Constraint("Vertical", 9))
sketch12.addConstraint(Sketcher.Constraint("Horizontal", 11))
sketch12.addConstraint(Sketcher.Constraint("Equal", 1, 3))
sketch12.addConstraint(Sketcher.Constraint("Equal", 3, 8))
sketch12.addConstraint(Sketcher.Constraint("Equal", 8, 10))
sketch12.addConstraint(Sketcher.Constraint("Symmetric", 3, 3, 8, 3, -1))
sketch12.addConstraint(Sketcher.Constraint("Symmetric", 5, 2, 11, 2, -1))
sketch12.addConstraint(Sketcher.Constraint("Radius", 1, Q("0.25 in")))
sketch12.addConstraint(Sketcher.Constraint("DistanceY", 2, 2, 2, 1, Q("0.6 in")))
sketch12.addConstraint(Sketcher.Constraint("DistanceY", -1, 1, 1, 3, Q("0.9 in")))
sketch12.addConstraint(Sketcher.Constraint("DistanceX", 0, 2, 0, 1, 71.009869))
sketch12.addConstraint(Sketcher.Constraint("DistanceX", 1, 3, -1, 1, 58.872585))
pad4 = doc.addObject("PartDesign::Pad", "Pad003")
body.addObject(pad4)
pad4.Profile = sketch12
pad4.Length = Q("0.1 in")

sketch13 = doc.addObject("Sketcher::SketchObject", "Sketch012")
body.addObject(sketch13)
sketch13.AttachmentSupport = (doc.XY_Plane, [""])
sketch13.MapMode = "FlatFace"
sketch13.AttachmentOffset = App.Placement(Vector(0, 0, 0.1 * 25.4), App.Rotation())
sketch13.addGeometry(Part.LineSegment(Vector(-55, -10, 0), Vector(-34, -10, 0)), False)
sketch13.addGeometry(Part.ArcOfCircle(Part.Circle(Vector(-34, -4, 0), Vector(0, 0, 1), 6), math.radians(-90), math.radians(0)), False)
sketch13.addGeometry(Part.LineSegment(Vector(-29, -4, 0), Vector(-29, 4, 0)), False)
sketch13.addGeometry(Part.ArcOfCircle(Part.Circle(Vector(-34, 4, 0), Vector(0, 0, 1), 6), math.radians(0), math.radians(90)), False)
sketch13.addGeometry(Part.LineSegment(Vector(-34, 10, 0), Vector(-55, 10, 0)), False)
sketch13.addGeometry(Part.ArcOfCircle(Part.Circle(Vector(-55, 4, 0), Vector(0, 0, 1), 6), math.radians(90), math.radians(180)), False)
sketch13.addGeometry(Part.LineSegment(Vector(-60, 4, 0), Vector(-60, -4, 0)), False)
sketch13.addGeometry(Part.ArcOfCircle(Part.Circle(Vector(-55, -4, 0), Vector(0, 0, 1), 6), math.radians(180), math.radians(270)), False)
sketch13.addGeometry(Part.LineSegment(Vector(1, 10, 0), Vector(-10, 10, 0)), False)
sketch13.addGeometry(Part.ArcOfCircle(Part.Circle(Vector(-10, 4, 0), Vector(0, 0, 1), 6), math.radians(90), math.radians(180)), False)
sketch13.addGeometry(Part.LineSegment(Vector(-16, 4, 0), Vector(-16, -4, 0)), False)
sketch13.addGeometry(Part.ArcOfCircle(Part.Circle(Vector(-10, -4, 0), Vector(0, 0, 1), 6), math.radians(180), math.radians(270)), False)
sketch13.addGeometry(Part.LineSegment(Vector(-10, -10, 0), Vector(1, -10, 0)), False)
sketch13.addGeometry(Part.ArcOfCircle(Part.Circle(Vector(1, -4, 0), Vector(0, 0, 1), 6), math.radians(-90), math.radians(0)), False)
sketch13.addGeometry(Part.LineSegment(Vector(7, -4, 0), Vector(7, 4, 0)), False)
sketch13.addGeometry(Part.ArcOfCircle(Part.Circle(Vector(1, 4, 0), Vector(0, 0, 1), 6), math.radians(0), math.radians(90)), False)
sketch13.addConstraint(Sketcher.Constraint("Tangent", 0, 2, 1, 1))
sketch13.addConstraint(Sketcher.Constraint("Tangent", 1, 2, 2, 1))
sketch13.addConstraint(Sketcher.Constraint("Tangent", 2, 2, 3, 1))
sketch13.addConstraint(Sketcher.Constraint("Tangent", 3, 2, 4, 1))
sketch13.addConstraint(Sketcher.Constraint("Tangent", 4, 2, 5, 1))
sketch13.addConstraint(Sketcher.Constraint("Tangent", 5, 2, 6, 1))
sketch13.addConstraint(Sketcher.Constraint("Tangent", 6, 2, 7, 1))
sketch13.addConstraint(Sketcher.Constraint("Tangent", 7, 2, 0, 1))
sketch13.addConstraint(Sketcher.Constraint("Tangent", 8, 2, 9, 1))
sketch13.addConstraint(Sketcher.Constraint("Tangent", 9, 2, 10, 1))
sketch13.addConstraint(Sketcher.Constraint("Tangent", 10, 2, 11, 1))
sketch13.addConstraint(Sketcher.Constraint("Tangent", 11, 2, 12, 1))
sketch13.addConstraint(Sketcher.Constraint("Tangent", 12, 2, 13, 1))
sketch13.addConstraint(Sketcher.Constraint("Tangent", 13, 2, 14, 1))
sketch13.addConstraint(Sketcher.Constraint("Tangent", 14, 2, 15, 1))
sketch13.addConstraint(Sketcher.Constraint("Tangent", 15, 2, 8, 1))
sketch13.addConstraint(Sketcher.Constraint("Horizontal", 0))
sketch13.addConstraint(Sketcher.Constraint("Vertical", 2))
sketch13.addConstraint(Sketcher.Constraint("Horizontal", 4))
sketch13.addConstraint(Sketcher.Constraint("Vertical", 6))
sketch13.addConstraint(Sketcher.Constraint("Horizontal", 8))
sketch13.addConstraint(Sketcher.Constraint("Vertical", 10))
sketch13.addConstraint(Sketcher.Constraint("Horizontal", 12))
sketch13.addConstraint(Sketcher.Constraint("Vertical", 14))
sketch13.addConstraint(Sketcher.Constraint("Equal", 1, 3))
sketch13.addConstraint(Sketcher.Constraint("Equal", 3, 5))
sketch13.addConstraint(Sketcher.Constraint("Equal", 5, 7))
sketch13.addConstraint(Sketcher.Constraint("Equal", 9, 11))
sketch13.addConstraint(Sketcher.Constraint("Equal", 11, 13))
sketch13.addConstraint(Sketcher.Constraint("Equal", 13, 15))
sketch13.addConstraint(Sketcher.Constraint("Horizontal", 4, 2, 8, 2))
sketch13.addConstraint(Sketcher.Constraint("Horizontal", 7, 2, 11, 2))
sketch13.addConstraint(Sketcher.Constraint("Radius", 9, Q("0.25 in")))
sketch13.addConstraint(Sketcher.Constraint("DistanceX", 8, 2, 8, 1, Q("0.4 in")))
sketch13.addConstraint(Sketcher.Constraint("DistanceY", 10, 2, 10, 1, Q("0.3 in")))
sketch13.addConstraint(Sketcher.Constraint("DistanceY", 0, 2, -1, 1, Q("0.4 in")))
sketch13.addConstraint(Sketcher.Constraint("DistanceX", 2, 2, 9, 2, Q("0.5 in")))
sketch13.addConstraint(Sketcher.Constraint("DistanceX", 9, 3, -1, 1, Q("0.375 in")))
sketch13.addConstraint(Sketcher.Constraint("DistanceX", 5, 2, -1, 1, Q("2.375 in")))
sketch13.addConstraint(Sketcher.Constraint("Radius", 1, 5.783454))
pocket9 = doc.addObject("PartDesign::Pocket", "Pocket008")
body.addObject(pocket9)
pocket9.Profile = sketch13
pocket9.Type = "ThroughAll"

doc.recompute()
